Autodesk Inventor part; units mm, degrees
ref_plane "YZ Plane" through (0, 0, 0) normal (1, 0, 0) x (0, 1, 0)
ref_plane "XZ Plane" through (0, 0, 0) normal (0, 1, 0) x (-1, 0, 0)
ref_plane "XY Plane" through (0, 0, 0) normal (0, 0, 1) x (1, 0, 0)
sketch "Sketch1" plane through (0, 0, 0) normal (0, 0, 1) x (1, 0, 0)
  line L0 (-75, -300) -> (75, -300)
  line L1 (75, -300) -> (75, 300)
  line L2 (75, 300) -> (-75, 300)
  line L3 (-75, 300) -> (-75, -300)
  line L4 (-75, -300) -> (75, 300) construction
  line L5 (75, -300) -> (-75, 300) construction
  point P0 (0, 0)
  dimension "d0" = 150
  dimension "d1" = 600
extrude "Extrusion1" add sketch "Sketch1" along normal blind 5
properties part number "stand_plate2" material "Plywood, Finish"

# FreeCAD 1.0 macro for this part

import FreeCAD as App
import Part
import Sketcher


def add_polygon(sketch, points):
    """Adds a closed chain of lines whose ends are joined by coincident constraints."""
    first, n = sketch.GeometryCount, len(points)
    for a, b in zip(points, points[1:] + points[:1]):
        sketch.addGeometry(Part.LineSegment(App.Vector(*a, 0), App.Vector(*b, 0)), False)
    for i in range(n):
        sketch.addConstraint(Sketcher.Constraint("Coincident", first + i, 2, first + (i + 1) % n, 1))

doc = App.newDocument("Part")
body = doc.addObject("PartDesign::Body", "Body")

sketch1 = body.newObject("Sketcher::SketchObject", "Sketch")
sketch1.AttachmentSupport = (doc.getObject("XY_Plane"), [""])
sketch1.MapMode = "FlatFace"
add_polygon(sketch1, [(-75, 300), (-75, -300), (75, -300), (75, 300)])
sketch1.addConstraint(Sketcher.Constraint("Vertical", 0))
sketch1.addConstraint(Sketcher.Constraint("Horizontal", 1))
sketch1.addConstraint(Sketcher.Constraint("Vertical", 2))
sketch1.addConstraint(Sketcher.Constraint("Horizontal", 3))
sketch1.addConstraint(Sketcher.Constraint("Symmetric", 0, 2, 2, 2, -1, 1))
sketch1.addConstraint(Sketcher.Constraint("DistanceX", 1, 1, 1, 2, 150.0))
sketch1.addConstraint(Sketcher.Constraint("DistanceY", 0, 2, 0, 1, 600.0))
pad1 = body.newObject("PartDesign::Pad", "Pad")
pad1.Profile = sketch1
pad1.Length = 5

doc.recompute()
